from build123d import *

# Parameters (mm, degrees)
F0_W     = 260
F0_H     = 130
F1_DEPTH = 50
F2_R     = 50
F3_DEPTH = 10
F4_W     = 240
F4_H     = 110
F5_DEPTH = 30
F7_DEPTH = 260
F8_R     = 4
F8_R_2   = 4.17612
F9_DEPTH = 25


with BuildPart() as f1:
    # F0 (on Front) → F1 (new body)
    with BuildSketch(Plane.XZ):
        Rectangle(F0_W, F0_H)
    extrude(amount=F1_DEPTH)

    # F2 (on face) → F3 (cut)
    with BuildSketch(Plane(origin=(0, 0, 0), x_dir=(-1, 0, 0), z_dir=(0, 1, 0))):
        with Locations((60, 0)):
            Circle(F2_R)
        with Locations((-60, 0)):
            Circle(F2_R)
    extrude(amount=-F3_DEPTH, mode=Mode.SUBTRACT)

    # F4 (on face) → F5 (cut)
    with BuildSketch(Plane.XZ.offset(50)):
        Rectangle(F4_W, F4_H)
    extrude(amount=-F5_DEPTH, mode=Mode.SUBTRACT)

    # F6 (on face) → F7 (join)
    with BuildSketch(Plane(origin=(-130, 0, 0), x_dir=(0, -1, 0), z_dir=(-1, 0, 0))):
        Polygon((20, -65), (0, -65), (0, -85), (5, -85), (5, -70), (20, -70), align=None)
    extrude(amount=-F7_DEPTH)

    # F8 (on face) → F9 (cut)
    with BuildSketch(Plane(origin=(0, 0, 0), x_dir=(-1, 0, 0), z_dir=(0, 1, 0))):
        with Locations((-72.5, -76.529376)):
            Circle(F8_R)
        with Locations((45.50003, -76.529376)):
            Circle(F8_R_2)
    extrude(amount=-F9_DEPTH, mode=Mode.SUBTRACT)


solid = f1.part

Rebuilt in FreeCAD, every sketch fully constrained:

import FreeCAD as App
import Part
import Sketcher

V = App.Vector
Q = App.Units.Quantity


def add_polygon(sketch, points):
    """Adds a closed chain of lines whose ends are joined by coincident constraints."""
    first, n = sketch.GeometryCount, len(points)
    for a, b in zip(points, points[1:] + points[:1]):
        sketch.addGeometry(Part.LineSegment(App.Vector(*a, 0), App.Vector(*b, 0)), False)
    for i in range(n):
        sketch.addConstraint(Sketcher.Constraint("Coincident", first + i, 2, first + (i + 1) % n, 1))

doc = App.newDocument("Part")
params = doc.addObject("Spreadsheet::Sheet", "Params")
for row, (alias, value) in enumerate([
    ("sketch1_width", "260 mm"),
    ("sketch1_height", "130 mm"),
    ("pad1_length", "50 mm"),
    ("sketch2_diameter", "100 mm"),
    ("pocket1_length", "10 mm"),
    ("sketch3_width", "240 mm"),
    ("sketch3_height", "110 mm"),
    ("pocket2_length", "30 mm"),
    ("sketch4_width", "20 mm"),
    ("sketch4_width2", "5 mm"),
    ("pad2_length", "260 mm"),
    ("sketch5_diameter", "8 mm"),
    ("pocket3_length", "25 mm"),
], start=1):
    params.set(f"A{row}", alias)
    params.set(f"B{row}", "=" + value)
    params.setAlias(f"B{row}", alias)

body = doc.addObject("PartDesign::Body", "Body")

sketch1 = doc.addObject("Sketcher::SketchObject", "Sketch")
body.addObject(sketch1)
sketch1.AttachmentSupport = (doc.XZ_Plane, [""])
sketch1.MapMode = "FlatFace"
add_polygon(sketch1, [(-130, 65), (-130, -65), (130, -65), (130, 65)])
sketch1.addConstraint([
    Sketcher.Constraint("Vertical", 0),
    Sketcher.Constraint("Horizontal", 1),
    Sketcher.Constraint("Vertical", 2),
    Sketcher.Constraint("Horizontal", 3),
    Sketcher.Constraint("Symmetric", 0, 2, 2, 2, -1, 1),
    Sketcher.Constraint("DistanceX", 1, 1, 1, 2, Q("260 mm")),
    Sketcher.Constraint("DistanceY", 0, 2, 0, 1, Q("130 mm")),
])
sketch1.setExpression("Constraints[9]", "Params.sketch1_width")
sketch1.setExpression("Constraints[10]", "Params.sketch1_height")
pad1 = doc.addObject("PartDesign::Pad", "Pad")
body.addObject(pad1)
pad1.Profile = sketch1
pad1.setExpression("Length", "Params.pad1_length")

sketch2 = doc.addObject("Sketcher::SketchObject", "Sketch001")
body.addObject(sketch2)
sketch2.AttachmentSupport = (doc.XZ_Plane, [""])
sketch2.MapMode = "FlatFace"
sketch2.addGeometry([
    Part.Circle(V(-60, 0, 0), V(0, 0, 1), 50),
    Part.Circle(V(60, 0, 0), V(0, 0, 1), 50),
], False)
sketch2.addConstraint([
    Sketcher.Constraint("Equal", 0, 1),
    Sketcher.Constraint("Symmetric", 0, 3, 1, 3, -1, 1),
    Sketcher.Constraint("PointOnObject", 0, 3, -1),
    Sketcher.Constraint("Diameter", 0, Q("100 mm")),
    Sketcher.Constraint("DistanceX", 0, 3, -1, 1, Q("60 mm")),
])
sketch2.setExpression("Constraints[3]", "Params.sketch2_diameter")
pocket1 = doc.addObject("PartDesign::Pocket", "Pocket")
body.addObject(pocket1)
pocket1.Profile = sketch2
pocket1.setExpression("Length", "Params.pocket1_length")
pocket1.Reversed = True

sketch3 = doc.addObject("Sketcher::SketchObject", "Sketch002")
body.addObject(sketch3)
sketch3.AttachmentSupport = (doc.XZ_Plane, [""])
sketch3.MapMode = "FlatFace"
sketch3.AttachmentOffset = App.Placement(V(0, 0, 50), App.Rotation())
add_polygon(sketch3, [(-120, 55), (-120, -55), (120, -55), (120, 55)])
sketch3.addConstraint([
    Sketcher.Constraint("Vertical", 0),
    Sketcher.Constraint("Horizontal", 1),
    Sketcher.Constraint("Vertical", 2),
    Sketcher.Constraint("Horizontal", 3),
    Sketcher.Constraint("Symmetric", 0, 2, 2, 2, -1, 1),
    Sketcher.Constraint("DistanceX", 1, 1, 1, 2, Q("240 mm")),
    Sketcher.Constraint("DistanceY", 0, 2, 0, 1, Q("110 mm")),
])
sketch3.setExpression("Constraints[9]", "Params.sketch3_width")
sketch3.setExpression("Constraints[10]", "Params.sketch3_height")
pocket2 = doc.addObject("PartDesign::Pocket", "Pocket001")
body.addObject(pocket2)
pocket2.Profile = sketch3
pocket2.setExpression("Length", "Params.pocket2_length")

sketch4 = doc.addObject("Sketcher::SketchObject", "Sketch003")
body.addObject(sketch4)
sketch4.AttachmentSupport = (doc.YZ_Plane, [""])
sketch4.MapMode = "FlatFace"
sketch4.AttachmentOffset = App.Placement(V(0, 0, -130), App.Rotation())
add_polygon(sketch4, [(-20, -65), (0, -65), (0, -85), (-5, -85), (-5, -70), (-20, -70)])
sketch4.addConstraint([
    Sketcher.Constraint("Horizontal", 0),
    Sketcher.Constraint("Vertical", 1),
    Sketcher.Constraint("Horizontal", 2),
    Sketcher.Constraint("Vertical", 3),
    Sketcher.Constraint("Horizontal", 4),
    Sketcher.Constraint("Vertical", 5),
    Sketcher.Constraint("PointOnObject", 0, 2, -2),
    Sketcher.Constraint("Equal", 0, 1),
    Sketcher.Constraint("Equal", 4, 3),
    Sketcher.Constraint("DistanceX", 0, 1, 0, 2, Q("20 mm")),
    Sketcher.Constraint("DistanceX", 2, 2, 2, 1, Q("5 mm")),
    Sketcher.Constraint("DistanceY", 0, 2, -1, 1, Q("65 mm")),
])
sketch4.setExpression("Constraints[15]", "Params.sketch4_width")
sketch4.setExpression("Constraints[16]", "Params.sketch4_width2")
pad2 = doc.addObject("PartDesign::Pad", "Pad001")
body.addObject(pad2)
pad2.Profile = sketch4
pad2.setExpression("Length", "Params.pad2_length")

sketch5 = doc.addObject("Sketcher::SketchObject", "Sketch004")
body.addObject(sketch5)
sketch5.AttachmentSupport = (doc.XZ_Plane, [""])
sketch5.MapMode = "FlatFace"
sketch5.addGeometry([
    Part.Circle(V(72.5, -76.5, 0), V(0, 0, 1), 4),
    Part.Circle(V(-45.5, -76.5, 0), V(0, 0, 1), 4.2),
], False)
sketch5.addConstraint([
    Sketcher.Constraint("Horizontal", 0, 3, 1, 3),
    Sketcher.Constraint("Diameter", 0, Q("8 mm")),
    Sketcher.Constraint("DistanceX", -1, 1, 0, 3, Q("72.5 mm")),
    Sketcher.Constraint("Diameter", 1, Q("8.35224 mm")),
    Sketcher.Constraint("DistanceX", 1, 3, -1, 1, Q("45.50003 mm")),
    Sketcher.Constraint("DistanceY", 0, 3, -1, 1, Q("76.529376 mm")),
])
sketch5.setExpression("Constraints[1]", "Params.sketch5_diameter")
pocket3 = doc.addObject("PartDesign::Pocket", "Pocket002")
body.addObject(pocket3)
pocket3.Profile = sketch5
pocket3.setExpression("Length", "Params.pocket3_length")
pocket3.Reversed = True

doc.recompute()
